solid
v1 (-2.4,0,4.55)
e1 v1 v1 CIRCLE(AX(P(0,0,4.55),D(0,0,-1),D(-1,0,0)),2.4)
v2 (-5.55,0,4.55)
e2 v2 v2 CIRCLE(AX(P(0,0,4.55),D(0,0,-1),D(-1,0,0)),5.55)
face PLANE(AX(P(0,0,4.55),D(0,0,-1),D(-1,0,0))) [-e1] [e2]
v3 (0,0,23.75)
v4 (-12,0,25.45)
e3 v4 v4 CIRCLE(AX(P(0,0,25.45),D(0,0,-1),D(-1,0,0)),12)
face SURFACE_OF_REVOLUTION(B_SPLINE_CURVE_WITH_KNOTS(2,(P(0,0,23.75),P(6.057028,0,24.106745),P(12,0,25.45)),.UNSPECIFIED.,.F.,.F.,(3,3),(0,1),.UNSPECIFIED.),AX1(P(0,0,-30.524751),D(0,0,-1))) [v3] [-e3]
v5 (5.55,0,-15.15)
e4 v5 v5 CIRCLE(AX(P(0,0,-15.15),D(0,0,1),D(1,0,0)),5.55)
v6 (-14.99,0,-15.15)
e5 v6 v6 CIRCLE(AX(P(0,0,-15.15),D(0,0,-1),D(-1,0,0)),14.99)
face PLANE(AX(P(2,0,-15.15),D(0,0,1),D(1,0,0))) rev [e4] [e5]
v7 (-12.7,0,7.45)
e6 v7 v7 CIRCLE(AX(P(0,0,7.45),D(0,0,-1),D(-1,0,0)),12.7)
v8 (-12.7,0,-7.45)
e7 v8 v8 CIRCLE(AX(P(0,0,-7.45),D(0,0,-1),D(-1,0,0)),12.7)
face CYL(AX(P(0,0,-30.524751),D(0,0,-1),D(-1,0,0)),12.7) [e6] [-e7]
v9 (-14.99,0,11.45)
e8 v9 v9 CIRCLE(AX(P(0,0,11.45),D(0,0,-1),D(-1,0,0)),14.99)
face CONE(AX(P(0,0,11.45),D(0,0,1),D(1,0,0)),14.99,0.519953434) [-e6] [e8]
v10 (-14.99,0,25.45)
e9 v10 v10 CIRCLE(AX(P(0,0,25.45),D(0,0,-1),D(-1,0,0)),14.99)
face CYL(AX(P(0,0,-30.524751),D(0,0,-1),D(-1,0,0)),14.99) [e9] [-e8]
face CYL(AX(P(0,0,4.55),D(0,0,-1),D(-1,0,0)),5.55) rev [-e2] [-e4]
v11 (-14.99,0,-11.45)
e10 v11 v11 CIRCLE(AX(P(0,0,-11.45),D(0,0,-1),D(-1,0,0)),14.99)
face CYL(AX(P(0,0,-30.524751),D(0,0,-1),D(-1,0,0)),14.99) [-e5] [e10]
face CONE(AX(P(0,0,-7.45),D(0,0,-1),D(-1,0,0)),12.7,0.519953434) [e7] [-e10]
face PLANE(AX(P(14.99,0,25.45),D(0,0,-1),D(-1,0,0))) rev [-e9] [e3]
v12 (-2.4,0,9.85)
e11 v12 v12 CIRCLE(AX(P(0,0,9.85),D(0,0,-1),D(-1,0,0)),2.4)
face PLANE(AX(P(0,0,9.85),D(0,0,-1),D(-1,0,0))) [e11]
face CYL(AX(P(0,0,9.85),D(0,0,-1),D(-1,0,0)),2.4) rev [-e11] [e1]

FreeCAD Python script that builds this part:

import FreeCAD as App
import Part
import Sketcher

doc = App.newDocument("Part")
params = doc.addObject("Spreadsheet::Sheet", "Params")
for row, (alias, value) in enumerate([
    ("sketch1_width", "2 mm"),
    ("sketch1_height", "14 mm"),
    ("sketch1_height2", "39.2 mm"),
    ("sketch1_height3", "14.9 mm"),
    ("sketch1_height4", "3.7 mm"),
    ("revolution_angle", "360 deg"),
    ("sketch2_diameter", "11.1 mm"),
    ("pocket1_length", "20 mm"),
    ("sketch3_diameter", "4.8 mm"),
    ("pocket2_length", "25 mm"),
], start=1):
    params.set(f"A{row}", alias)
    params.set(f"B{row}", "=" + value)
    params.setAlias(f"B{row}", alias)

body = doc.addObject("PartDesign::Body", "Body")

sketch1 = body.newObject("Sketcher::SketchObject", "Sketch")
sketch1.AttachmentSupport = (doc.getObject("XZ_Plane"), [""])
sketch1.MapMode = "FlatFace"
sketch1.addGeometry(Part.LineSegment(App.Vector(2, -15.45, 0), App.Vector(0, -15.45, 0)), False)
sketch1.addGeometry(Part.LineSegment(App.Vector(0, -15.45, 0), App.Vector(0, 23.75, 0)), False)
sketch1.addGeometry(Part.BSplineCurve([App.Vector(0, 23.75, 0), App.Vector(6.057028, 24.106745, 0), App.Vector(12, 25.45, 0)], [3, 3], [0, 1], False, 2, [1, 1, 1], False), False)
sketch1.addGeometry(Part.LineSegment(App.Vector(12, 25.45, 0), App.Vector(14.99, 25.45, 0)), False)
sketch1.addGeometry(Part.LineSegment(App.Vector(14.99, 25.45, 0), App.Vector(14.99, 11.45, 0)), False)
sketch1.addGeometry(Part.LineSegment(App.Vector(14.99, 11.45, 0), App.Vector(12.7, 7.45, 0)), False)
sketch1.addGeometry(Part.LineSegment(App.Vector(12.7, 7.45, 0), App.Vector(12.7, -7.45, 0)), False)
sketch1.addGeometry(Part.LineSegment(App.Vector(12.7, -7.45, 0), App.Vector(14.99, -11.45, 0)), False)
sketch1.addGeometry(Part.LineSegment(App.Vector(14.99, -11.45, 0), App.Vector(14.99, -15.15, 0)), False)
sketch1.addGeometry(Part.LineSegment(App.Vector(14.99, -15.15, 0), App.Vector(2, -15.15, 0)), False)
sketch1.addGeometry(Part.LineSegment(App.Vector(2, -15.15, 0), App.Vector(2, -15.45, 0)), False)
sketch1.addConstraint(Sketcher.Constraint("Block", 2))
sketch1.addConstraint(Sketcher.Constraint("Coincident", 0, 2, 1, 1))
sketch1.addConstraint(Sketcher.Constraint("Coincident", 1, 2, 2, 1))
sketch1.addConstraint(Sketcher.Constraint("Coincident", 2, 2, 3, 1))
sketch1.addConstraint(Sketcher.Constraint("Coincident", 3, 2, 4, 1))
sketch1.addConstraint(Sketcher.Constraint("Coincident", 4, 2, 5, 1))
sketch1.addConstraint(Sketcher.Constraint("Coincident", 5, 2, 6, 1))
sketch1.addConstraint(Sketcher.Constraint("Coincident", 6, 2, 7, 1))
sketch1.addConstraint(Sketcher.Constraint("Coincident", 7, 2, 8, 1))
sketch1.addConstraint(Sketcher.Constraint("Coincident", 8, 2, 9, 1))
sketch1.addConstraint(Sketcher.Constraint("Coincident", 9, 2, 10, 1))
sketch1.addConstraint(Sketcher.Constraint("Coincident", 10, 2, 0, 1))
sketch1.addConstraint(Sketcher.Constraint("Horizontal", 0))
sketch1.addConstraint(Sketcher.Constraint("Vertical", 1))
sketch1.addConstraint(Sketcher.Constraint("Horizontal", 3))
sketch1.addConstraint(Sketcher.Constraint("Vertical", 4))
sketch1.addConstraint(Sketcher.Constraint("Vertical", 6))
sketch1.addConstraint(Sketcher.Constraint("Vertical", 8))
sketch1.addConstraint(Sketcher.Constraint("Horizontal", 9))
sketch1.addConstraint(Sketcher.Constraint("Vertical", 10))
sketch1.addConstraint(Sketcher.Constraint("Symmetric", 4, 2, 7, 2, -1))
sketch1.addConstraint(Sketcher.Constraint("Equal", 5, 7))
sketch1.addConstraint(Sketcher.Constraint("DistanceX", 0, 2, 0, 1, 2.0))
sketch1.addConstraint(Sketcher.Constraint("DistanceY", 4, 2, 4, 1, 14.0))
sketch1.addConstraint(Sketcher.Constraint("DistanceY", 1, 1, 1, 2, 39.2))
sketch1.addConstraint(Sketcher.Constraint("DistanceY", 6, 2, 6, 1, 14.9))
sketch1.addConstraint(Sketcher.Constraint("DistanceY", 8, 2, 8, 1, 3.7))
sketch1.addConstraint(Sketcher.Constraint("DistanceX", 3, 1, 3, 2, 2.99))
sketch1.addConstraint(Sketcher.Constraint("DistanceX", -1, 1, 5, 2, 12.7))
sketch1.setExpression("Constraints[22]", "Params.sketch1_width")
sketch1.setExpression("Constraints[23]", "Params.sketch1_height")
sketch1.setExpression("Constraints[24]", "Params.sketch1_height2")
sketch1.setExpression("Constraints[25]", "Params.sketch1_height3")
sketch1.setExpression("Constraints[26]", "Params.sketch1_height4")
revolution = body.newObject("PartDesign::Revolution", "Revolution")
revolution.Profile = sketch1
revolution.ReferenceAxis = (sketch1, ["V_Axis"])
revolution.setExpression("Angle", "Params.revolution_angle")

sketch2 = body.newObject("Sketcher::SketchObject", "Sketch001")
sketch2.AttachmentSupport = (doc.getObject("XY_Plane"), [""])
sketch2.MapMode = "FlatFace"
sketch2.AttachmentOffset = App.Placement(App.Vector(0, 0, -15.45), App.Rotation())
sketch2.addGeometry(Part.Circle(App.Vector(0, 0, 0), App.Vector(0, 0, 1), 5.55), False)
sketch2.addConstraint(Sketcher.Constraint("Coincident", 0, 3, -1, 1))
sketch2.addConstraint(Sketcher.Constraint("Diameter", 0, 11.1))
sketch2.setExpression("Constraints[1]", "Params.sketch2_diameter")
pocket1 = body.newObject("PartDesign::Pocket", "Pocket")
pocket1.Profile = sketch2
pocket1.setExpression("Length", "Params.pocket1_length")
pocket1.Reversed = True

sketch3 = body.newObject("Sketcher::SketchObject", "Sketch002")
sketch3.AttachmentSupport = (doc.getObject("XY_Plane"), [""])
sketch3.MapMode = "FlatFace"
sketch3.AttachmentOffset = App.Placement(App.Vector(0, 0, -15.15), App.Rotation())
sketch3.addGeometry(Part.Circle(App.Vector(0, 0, 0), App.Vector(0, 0, 1), 2.4), False)
sketch3.addConstraint(Sketcher.Constraint("Coincident", 0, 3, -1, 1))
sketch3.addConstraint(Sketcher.Constraint("Diameter", 0, 4.8))
sketch3.setExpression("Constraints[1]", "Params.sketch3_diameter")
pocket2 = body.newObject("PartDesign::Pocket", "Pocket001")
pocket2.Profile = sketch3
pocket2.setExpression("Length", "Params.pocket2_length")
pocket2.Reversed = True

doc.recompute()
